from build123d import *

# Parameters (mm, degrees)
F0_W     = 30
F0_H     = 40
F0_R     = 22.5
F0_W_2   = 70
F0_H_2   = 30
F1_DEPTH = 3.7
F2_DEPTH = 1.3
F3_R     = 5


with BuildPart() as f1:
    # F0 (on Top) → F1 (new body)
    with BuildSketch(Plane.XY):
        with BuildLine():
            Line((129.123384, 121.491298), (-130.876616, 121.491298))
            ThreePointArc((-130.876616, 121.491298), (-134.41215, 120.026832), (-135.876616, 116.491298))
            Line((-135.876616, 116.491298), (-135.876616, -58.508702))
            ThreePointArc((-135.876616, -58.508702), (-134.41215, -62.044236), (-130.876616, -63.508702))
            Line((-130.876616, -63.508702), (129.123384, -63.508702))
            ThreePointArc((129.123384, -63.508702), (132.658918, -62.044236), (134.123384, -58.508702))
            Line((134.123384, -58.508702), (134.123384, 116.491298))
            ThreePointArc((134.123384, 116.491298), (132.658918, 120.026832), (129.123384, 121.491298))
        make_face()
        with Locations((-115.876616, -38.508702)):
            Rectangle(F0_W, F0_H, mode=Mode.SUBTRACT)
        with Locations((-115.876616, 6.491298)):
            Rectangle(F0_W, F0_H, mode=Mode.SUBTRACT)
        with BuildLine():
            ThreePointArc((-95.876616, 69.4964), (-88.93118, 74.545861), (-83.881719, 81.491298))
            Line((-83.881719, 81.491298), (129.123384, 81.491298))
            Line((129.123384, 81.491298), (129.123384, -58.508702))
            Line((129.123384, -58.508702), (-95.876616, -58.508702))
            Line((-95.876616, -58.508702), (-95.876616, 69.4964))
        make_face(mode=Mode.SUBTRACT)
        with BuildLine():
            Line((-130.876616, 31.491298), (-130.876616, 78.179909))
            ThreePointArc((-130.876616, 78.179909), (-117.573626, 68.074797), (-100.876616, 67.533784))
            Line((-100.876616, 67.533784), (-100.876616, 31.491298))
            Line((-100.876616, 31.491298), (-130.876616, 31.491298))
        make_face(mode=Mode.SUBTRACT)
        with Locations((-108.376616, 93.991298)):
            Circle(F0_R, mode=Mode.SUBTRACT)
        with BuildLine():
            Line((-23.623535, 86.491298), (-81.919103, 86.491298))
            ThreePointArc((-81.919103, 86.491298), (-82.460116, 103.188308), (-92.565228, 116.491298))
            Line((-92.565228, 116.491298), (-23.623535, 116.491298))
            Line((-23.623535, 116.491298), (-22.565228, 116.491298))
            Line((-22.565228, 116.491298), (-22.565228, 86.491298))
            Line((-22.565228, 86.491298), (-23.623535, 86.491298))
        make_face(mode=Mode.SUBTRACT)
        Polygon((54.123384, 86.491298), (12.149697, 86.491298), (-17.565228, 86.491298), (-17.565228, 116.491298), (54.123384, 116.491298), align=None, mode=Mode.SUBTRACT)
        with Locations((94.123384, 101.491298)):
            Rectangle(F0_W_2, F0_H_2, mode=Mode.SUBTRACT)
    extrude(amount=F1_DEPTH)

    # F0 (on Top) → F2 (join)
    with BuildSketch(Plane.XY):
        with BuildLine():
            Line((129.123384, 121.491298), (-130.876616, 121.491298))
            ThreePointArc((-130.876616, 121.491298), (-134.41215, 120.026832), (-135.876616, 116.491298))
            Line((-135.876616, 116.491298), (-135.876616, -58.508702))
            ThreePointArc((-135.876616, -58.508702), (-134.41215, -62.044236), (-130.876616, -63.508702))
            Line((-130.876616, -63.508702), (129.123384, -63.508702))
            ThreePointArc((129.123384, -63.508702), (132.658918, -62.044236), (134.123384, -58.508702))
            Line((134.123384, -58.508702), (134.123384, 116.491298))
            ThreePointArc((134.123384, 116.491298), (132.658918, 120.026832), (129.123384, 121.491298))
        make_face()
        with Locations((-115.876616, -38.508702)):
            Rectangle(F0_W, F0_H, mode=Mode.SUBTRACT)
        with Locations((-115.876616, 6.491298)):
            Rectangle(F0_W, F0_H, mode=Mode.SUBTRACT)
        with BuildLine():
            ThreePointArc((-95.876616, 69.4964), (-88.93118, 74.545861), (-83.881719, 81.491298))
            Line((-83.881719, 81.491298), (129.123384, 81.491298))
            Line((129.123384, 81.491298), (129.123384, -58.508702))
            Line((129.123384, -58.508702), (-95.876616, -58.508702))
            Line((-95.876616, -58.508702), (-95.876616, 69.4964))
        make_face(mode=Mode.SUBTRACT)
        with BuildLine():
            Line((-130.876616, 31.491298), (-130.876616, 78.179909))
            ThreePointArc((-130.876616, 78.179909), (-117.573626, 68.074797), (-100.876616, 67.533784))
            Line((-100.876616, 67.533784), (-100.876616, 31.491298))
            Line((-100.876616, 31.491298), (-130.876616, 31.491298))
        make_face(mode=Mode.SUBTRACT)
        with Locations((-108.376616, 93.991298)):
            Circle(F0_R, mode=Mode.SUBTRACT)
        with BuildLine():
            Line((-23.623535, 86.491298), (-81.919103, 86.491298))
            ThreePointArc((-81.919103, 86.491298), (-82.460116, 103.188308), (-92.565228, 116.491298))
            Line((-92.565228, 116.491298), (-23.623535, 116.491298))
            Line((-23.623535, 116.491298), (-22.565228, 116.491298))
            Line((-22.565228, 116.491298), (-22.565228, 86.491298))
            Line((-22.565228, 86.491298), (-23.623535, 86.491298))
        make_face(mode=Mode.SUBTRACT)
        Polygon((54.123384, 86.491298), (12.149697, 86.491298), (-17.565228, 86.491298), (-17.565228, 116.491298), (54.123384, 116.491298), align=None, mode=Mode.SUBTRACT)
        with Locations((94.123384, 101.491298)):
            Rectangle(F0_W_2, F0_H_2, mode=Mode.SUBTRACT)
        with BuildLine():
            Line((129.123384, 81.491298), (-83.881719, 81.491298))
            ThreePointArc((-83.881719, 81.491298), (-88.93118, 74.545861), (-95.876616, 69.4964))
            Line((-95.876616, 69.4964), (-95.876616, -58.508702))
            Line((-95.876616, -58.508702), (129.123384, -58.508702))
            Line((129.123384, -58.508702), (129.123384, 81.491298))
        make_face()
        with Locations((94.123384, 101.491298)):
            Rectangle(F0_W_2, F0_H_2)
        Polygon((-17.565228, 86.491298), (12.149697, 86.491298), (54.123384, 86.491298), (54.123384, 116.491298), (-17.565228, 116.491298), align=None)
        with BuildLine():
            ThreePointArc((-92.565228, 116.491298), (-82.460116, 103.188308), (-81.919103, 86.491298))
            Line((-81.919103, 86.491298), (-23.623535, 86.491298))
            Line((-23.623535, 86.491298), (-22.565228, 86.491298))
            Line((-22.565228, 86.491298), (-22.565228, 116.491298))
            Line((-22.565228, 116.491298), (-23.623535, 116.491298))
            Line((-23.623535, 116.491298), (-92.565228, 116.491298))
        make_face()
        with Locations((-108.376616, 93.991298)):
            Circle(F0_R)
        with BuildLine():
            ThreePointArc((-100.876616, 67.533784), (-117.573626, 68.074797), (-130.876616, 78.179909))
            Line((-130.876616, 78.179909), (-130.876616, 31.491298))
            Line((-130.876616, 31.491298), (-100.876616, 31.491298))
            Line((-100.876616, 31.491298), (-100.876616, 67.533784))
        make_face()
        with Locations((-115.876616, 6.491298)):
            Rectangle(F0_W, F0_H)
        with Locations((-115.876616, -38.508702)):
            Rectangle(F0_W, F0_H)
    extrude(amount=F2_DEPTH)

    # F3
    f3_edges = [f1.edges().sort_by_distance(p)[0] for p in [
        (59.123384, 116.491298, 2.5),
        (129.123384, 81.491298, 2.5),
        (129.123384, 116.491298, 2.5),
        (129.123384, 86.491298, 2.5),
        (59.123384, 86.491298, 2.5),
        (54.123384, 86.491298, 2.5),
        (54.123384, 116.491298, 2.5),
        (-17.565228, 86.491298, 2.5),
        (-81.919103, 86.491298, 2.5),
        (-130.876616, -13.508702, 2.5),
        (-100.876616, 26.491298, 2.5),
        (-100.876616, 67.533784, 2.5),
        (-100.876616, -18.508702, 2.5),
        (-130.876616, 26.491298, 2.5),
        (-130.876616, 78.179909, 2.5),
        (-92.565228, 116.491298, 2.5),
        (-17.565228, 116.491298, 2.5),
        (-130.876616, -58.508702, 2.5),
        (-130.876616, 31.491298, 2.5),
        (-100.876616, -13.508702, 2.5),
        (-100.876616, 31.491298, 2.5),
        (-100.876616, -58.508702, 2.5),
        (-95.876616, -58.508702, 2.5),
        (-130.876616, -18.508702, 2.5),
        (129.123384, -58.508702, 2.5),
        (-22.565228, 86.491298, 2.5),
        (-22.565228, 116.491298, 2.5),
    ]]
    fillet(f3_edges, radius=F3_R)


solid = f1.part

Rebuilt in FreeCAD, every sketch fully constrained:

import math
import FreeCAD as App
import Part
import Sketcher
Q = App.Units.Quantity


def edges_at(feature, points):
    """Names of the edges that pass closest to the given points."""
    edges = feature.Shape.Edges
    near = lambda p: min(range(len(edges)), key=lambda i: edges[i].distToShape(Part.Vertex(*p))[0])
    return sorted({f"Edge{near(p) + 1}" for p in points})


def add_polygon(sketch, points):
    """Adds a closed chain of lines whose ends are joined by coincident constraints."""
    first, n = sketch.GeometryCount, len(points)
    for a, b in zip(points, points[1:] + points[:1]):
        sketch.addGeometry(Part.LineSegment(App.Vector(*a, 0), App.Vector(*b, 0)), False)
    for i in range(n):
        sketch.addConstraint(Sketcher.Constraint("Coincident", first + i, 2, first + (i + 1) % n, 1))

doc = App.newDocument("Part")
body = doc.addObject("PartDesign::Body", "Body")

sketch1 = body.newObject("Sketcher::SketchObject", "Sketch")
sketch1.AttachmentSupport = (doc.getObject("XY_Plane"), [""])
sketch1.MapMode = "FlatFace"
sketch1.addGeometry(Part.LineSegment(App.Vector(129.1, 121.5, 0), App.Vector(-130.9, 121.5, 0)), False)
sketch1.addGeometry(Part.ArcOfCircle(Part.Circle(App.Vector(-130.9, 116.5, 0), App.Vector(0, 0, 1), 5), math.radians(90), math.radians(180)), False)
sketch1.addGeometry(Part.LineSegment(App.Vector(-135.9, 116.5, 0), App.Vector(-135.9, -58.5, 0)), False)
sketch1.addGeometry(Part.ArcOfCircle(Part.Circle(App.Vector(-130.9, -58.5, 0), App.Vector(0, 0, 1), 5), math.radians(180), math.radians(270)), False)
sketch1.addGeometry(Part.LineSegment(App.Vector(-130.9, -63.5, 0), App.Vector(129.1, -63.5, 0)), False)
sketch1.addGeometry(Part.ArcOfCircle(Part.Circle(App.Vector(129.1, -58.5, 0), App.Vector(0, 0, 1), 5), math.radians(-90), math.radians(0)), False)
sketch1.addGeometry(Part.LineSegment(App.Vector(134.1, -58.5, 0), App.Vector(134.1, 116.5, 0)), False)
sketch1.addGeometry(Part.ArcOfCircle(Part.Circle(App.Vector(129.1, 116.5, 0), App.Vector(0, 0, 1), 5), math.radians(0), math.radians(90)), False)
add_polygon(sketch1, [(-100.9, -58.5), (-130.9, -58.5), (-130.9, -18.5), (-100.9, -18.5)])
add_polygon(sketch1, [(-100.9, -13.5), (-130.9, -13.5), (-130.9, 26.5), (-100.9, 26.5)])
sketch1.addGeometry(Part.LineSegment(App.Vector(-95.9, -58.5, 0), App.Vector(-95.9, 69.5, 0)), False)
sketch1.addGeometry(Part.ArcOfCircle(Part.Circle(App.Vector(-108.4, 94, 0), App.Vector(0, 0, 1), 27.5), math.radians(-63), math.radians(-27)), False)
sketch1.addGeometry(Part.LineSegment(App.Vector(-83.9, 81.5, 0), App.Vector(129.1, 81.5, 0)), False)
sketch1.addGeometry(Part.LineSegment(App.Vector(129.1, 81.5, 0), App.Vector(129.1, -58.5, 0)), False)
sketch1.addGeometry(Part.LineSegment(App.Vector(129.1, -58.5, 0), App.Vector(-95.9, -58.5, 0)), False)
sketch1.addGeometry(Part.LineSegment(App.Vector(-100.9, 31.5, 0), App.Vector(-130.9, 31.5, 0)), False)
sketch1.addGeometry(Part.LineSegment(App.Vector(-130.9, 31.5, 0), App.Vector(-130.9, 78.2, 0)), False)
sketch1.addGeometry(Part.ArcOfCircle(Part.Circle(App.Vector(-108.4, 94, 0), App.Vector(0, 0, 1), 27.5), math.radians(-145), math.radians(-74)), False)
sketch1.addGeometry(Part.LineSegment(App.Vector(-100.9, 67.5, 0), App.Vector(-100.9, 31.5, 0)), False)
sketch1.addGeometry(Part.Circle(App.Vector(-108.4, 94, 0), App.Vector(0, 0, 1), 22.5), False)
sketch1.addGeometry(Part.LineSegment(App.Vector(-22.6, 86.5, 0), App.Vector(-81.9, 86.5, 0)), False)
sketch1.addGeometry(Part.ArcOfCircle(Part.Circle(App.Vector(-108.4, 94, 0), App.Vector(0, 0, 1), 27.5), math.radians(-16), math.radians(55)), False)
sketch1.addGeometry(Part.LineSegment(App.Vector(-92.6, 116.5, 0), App.Vector(-22.6, 116.5, 0)), False)
sketch1.addGeometry(Part.LineSegment(App.Vector(-22.6, 116.5, 0), App.Vector(-22.6, 86.5, 0)), False)
add_polygon(sketch1, [(54.1, 116.5), (54.1, 86.5), (-17.6, 86.5), (-17.6, 116.5)])
add_polygon(sketch1, [(129.1, 86.5), (59.1, 86.5), (59.1, 116.5), (129.1, 116.5)])
sketch1.addConstraint(Sketcher.Constraint("Tangent", 0, 2, 1, 1))
sketch1.addConstraint(Sketcher.Constraint("Tangent", 1, 2, 2, 1))
sketch1.addConstraint(Sketcher.Constraint("Tangent", 2, 2, 3, 1))
sketch1.addConstraint(Sketcher.Constraint("Tangent", 3, 2, 4, 1))
sketch1.addConstraint(Sketcher.Constraint("Tangent", 4, 2, 5, 1))
sketch1.addConstraint(Sketcher.Constraint("Tangent", 5, 2, 6, 1))
sketch1.addConstraint(Sketcher.Constraint("Tangent", 6, 2, 7, 1))
sketch1.addConstraint(Sketcher.Constraint("Tangent", 7, 2, 0, 1))
sketch1.addConstraint(Sketcher.Constraint("Coincident", 16, 2, 17, 1))
sketch1.addConstraint(Sketcher.Constraint("Coincident", 17, 2, 18, 1))
sketch1.addConstraint(Sketcher.Constraint("Coincident", 18, 2, 19, 1))
sketch1.addConstraint(Sketcher.Constraint("Coincident", 19, 2, 20, 1))
sketch1.addConstraint(Sketcher.Constraint("Coincident", 20, 2, 16, 1))
sketch1.addConstraint(Sketcher.Constraint("Coincident", 21, 2, 22, 1))
sketch1.addConstraint(Sketcher.Constraint("Coincident", 22, 2, 23, 1))
sketch1.addConstraint(Sketcher.Constraint("Coincident", 23, 2, 24, 1))
sketch1.addConstraint(Sketcher.Constraint("Coincident", 24, 2, 21, 1))
sketch1.addConstraint(Sketcher.Constraint("Coincident", 26, 2, 27, 1))
sketch1.addConstraint(Sketcher.Constraint("Coincident", 27, 2, 28, 1))
sketch1.addConstraint(Sketcher.Constraint("Coincident", 28, 2, 29, 1))
sketch1.addConstraint(Sketcher.Constraint("Coincident", 29, 2, 26, 1))
sketch1.addConstraint(Sketcher.Constraint("Horizontal", 0))
sketch1.addConstraint(Sketcher.Constraint("Vertical", 2))
sketch1.addConstraint(Sketcher.Constraint("Horizontal", 4))
sketch1.addConstraint(Sketcher.Constraint("Vertical", 6))
sketch1.addConstraint(Sketcher.Constraint("Horizontal", 8))
sketch1.addConstraint(Sketcher.Constraint("Vertical", 9))
sketch1.addConstraint(Sketcher.Constraint("Horizontal", 10))
sketch1.addConstraint(Sketcher.Constraint("Vertical", 11))
sketch1.addConstraint(Sketcher.Constraint("Horizontal", 12))
sketch1.addConstraint(Sketcher.Constraint("Vertical", 13))
sketch1.addConstraint(Sketcher.Constraint("Horizontal", 14))
sketch1.addConstraint(Sketcher.Constraint("Vertical", 15))
sketch1.addConstraint(Sketcher.Constraint("Vertical", 16))
sketch1.addConstraint(Sketcher.Constraint("Horizontal", 18))
sketch1.addConstraint(Sketcher.Constraint("Vertical", 19))
sketch1.addConstraint(Sketcher.Constraint("Horizontal", 20))
sketch1.addConstraint(Sketcher.Constraint("Horizontal", 21))
sketch1.addConstraint(Sketcher.Constraint("Vertical", 22))
sketch1.addConstraint(Sketcher.Constraint("Vertical", 24))
sketch1.addConstraint(Sketcher.Constraint("Horizontal", 26))
sketch1.addConstraint(Sketcher.Constraint("Horizontal", 28))
sketch1.addConstraint(Sketcher.Constraint("Vertical", 29))
sketch1.addConstraint(Sketcher.Constraint("Vertical", 30))
sketch1.addConstraint(Sketcher.Constraint("Horizontal", 31))
sketch1.addConstraint(Sketcher.Constraint("Vertical", 32))
sketch1.addConstraint(Sketcher.Constraint("Horizontal", 33))
sketch1.addConstraint(Sketcher.Constraint("Horizontal", 34))
sketch1.addConstraint(Sketcher.Constraint("Vertical", 35))
sketch1.addConstraint(Sketcher.Constraint("Horizontal", 36))
sketch1.addConstraint(Sketcher.Constraint("Vertical", 37))
sketch1.addConstraint(Sketcher.Constraint("Coincident", 23, 3, 17, 3))
sketch1.addConstraint(Sketcher.Constraint("Coincident", 25, 3, 17, 3))
sketch1.addConstraint(Sketcher.Constraint("Coincident", 27, 3, 17, 3))
sketch1.addConstraint(Sketcher.Constraint("Coincident", 8, 2, 3, 3))
sketch1.addConstraint(Sketcher.Constraint("Coincident", 19, 2, 5, 3))
sketch1.addConstraint(Sketcher.Constraint("Coincident", 36, 2, 7, 3))
sketch1.addConstraint(Sketcher.Constraint("Equal", 1, 3))
sketch1.addConstraint(Sketcher.Constraint("Equal", 3, 5))
sketch1.addConstraint(Sketcher.Constraint("Equal", 5, 7))
sketch1.addConstraint(Sketcher.Constraint("Equal", 17, 23))
sketch1.addConstraint(Sketcher.Constraint("Equal", 23, 27))
sketch1.addConstraint(Sketcher.Constraint("Horizontal", 6, 2, 27, 2))
sketch1.addConstraint(Sketcher.Constraint("Horizontal", 29, 2, 30, 2))
sketch1.addConstraint(Sketcher.Constraint("Horizontal", 28, 2, 32, 2))
sketch1.addConstraint(Sketcher.Constraint("Horizontal", 31, 2, 34, 2))
sketch1.addConstraint(Sketcher.Constraint("Vertical", 9, 2, 12, 2))
sketch1.addConstraint(Sketcher.Constraint("Vertical", 11, 2, 14, 2))
sketch1.addConstraint(Sketcher.Constraint("Vertical", 13, 2, 21, 2))
sketch1.addConstraint(Sketcher.Constraint("Vertical", 15, 2, 23, 2))
sketch1.addConstraint(Sketcher.Constraint("Equal", 28, 34))
sketch1.addConstraint(Sketcher.Constraint("Equal", 11, 13))
sketch1.addConstraint(Sketcher.Constraint("Equal", 21, 29))
sketch1.addConstraint(Sketcher.Constraint("Diameter", 25, Q("45 mm")))
sketch1.addConstraint(Sketcher.Constraint("Radius", 1, Q("5 mm")))
sketch1.addConstraint(Sketcher.Constraint("Radius", 17, Q("27.500001 mm")))
sketch1.addConstraint(Sketcher.Constraint("DistanceX", 0, 2, 0, 1, Q("260 mm")))
sketch1.addConstraint(Sketcher.Constraint("DistanceX", 8, 2, 8, 1, Q("30 mm")))
sketch1.addConstraint(Sketcher.Constraint("DistanceX", 20, 2, 20, 1, Q("225 mm")))
sketch1.addConstraint(Sketcher.Constraint("DistanceX", 28, 1, 28, 2, Q("70 mm")))
sketch1.addConstraint(Sketcher.Constraint("DistanceY", 2, 2, 2, 1, Q("175 mm")))
sketch1.addConstraint(Sketcher.Constraint("DistanceY", 9, 1, 9, 2, Q("40 mm")))
sketch1.addConstraint(Sketcher.Constraint("DistanceY", 19, 2, 19, 1, Q("140 mm")))
sketch1.addConstraint(Sketcher.Constraint("DistanceY", 9, 2, 12, 2, Q("5 mm")))
sketch1.addConstraint(Sketcher.Constraint("DistanceY", 13, 2, 21, 2, Q("5 mm")))
sketch1.addConstraint(Sketcher.Constraint("DistanceX", 30, 2, 18, 2, Q("75 mm")))
sketch1.addConstraint(Sketcher.Constraint("DistanceX", 29, 2, 31, 2, Q("5 mm")))
sketch1.addConstraint(Sketcher.Constraint("DistanceX", 1, 3, 17, 3, Q("22.499999 mm")))
sketch1.addConstraint(Sketcher.Constraint("DistanceY", 17, 3, 1, 3, Q("22.500001 mm")))
sketch1.addConstraint(Sketcher.Constraint("DistanceY", -1, 1, 1, 3, Q("116.491298 mm")))
sketch1.addConstraint(Sketcher.Constraint("DistanceX", 27, 3, -1, 1, Q("108.376619 mm")))
pad1 = body.newObject("PartDesign::Pad", "Pad")
pad1.Profile = sketch1
pad1.Length = 3.7

sketch2 = body.newObject("Sketcher::SketchObject", "Sketch001")
sketch2.AttachmentSupport = (doc.getObject("XY_Plane"), [""])
sketch2.MapMode = "FlatFace"
sketch2.addGeometry(Part.LineSegment(App.Vector(129.1, 121.5, 0), App.Vector(-130.9, 121.5, 0)), False)
sketch2.addGeometry(Part.ArcOfCircle(Part.Circle(App.Vector(-130.9, 116.5, 0), App.Vector(0, 0, 1), 5), math.radians(90), math.radians(180)), False)
sketch2.addGeometry(Part.LineSegment(App.Vector(-135.9, 116.5, 0), App.Vector(-135.9, -58.5, 0)), False)
sketch2.addGeometry(Part.ArcOfCircle(Part.Circle(App.Vector(-130.9, -58.5, 0), App.Vector(0, 0, 1), 5), math.radians(180), math.radians(270)), False)
sketch2.addGeometry(Part.LineSegment(App.Vector(-130.9, -63.5, 0), App.Vector(129.1, -63.5, 0)), False)
sketch2.addGeometry(Part.ArcOfCircle(Part.Circle(App.Vector(129.1, -58.5, 0), App.Vector(0, 0, 1), 5), math.radians(-90), math.radians(0)), False)
sketch2.addGeometry(Part.LineSegment(App.Vector(134.1, -58.5, 0), App.Vector(134.1, 116.5, 0)), False)
sketch2.addGeometry(Part.ArcOfCircle(Part.Circle(App.Vector(129.1, 116.5, 0), App.Vector(0, 0, 1), 5), math.radians(0), math.radians(90)), False)
sketch2.addConstraint(Sketcher.Constraint("Tangent", 0, 2, 1, 1))
sketch2.addConstraint(Sketcher.Constraint("Tangent", 1, 2, 2, 1))
sketch2.addConstraint(Sketcher.Constraint("Tangent", 2, 2, 3, 1))
sketch2.addConstraint(Sketcher.Constraint("Tangent", 3, 2, 4, 1))
sketch2.addConstraint(Sketcher.Constraint("Tangent", 4, 2, 5, 1))
sketch2.addConstraint(Sketcher.Constraint("Tangent", 5, 2, 6, 1))
sketch2.addConstraint(Sketcher.Constraint("Tangent", 6, 2, 7, 1))
sketch2.addConstraint(Sketcher.Constraint("Tangent", 7, 2, 0, 1))
sketch2.addConstraint(Sketcher.Constraint("Horizontal", 0))
sketch2.addConstraint(Sketcher.Constraint("Vertical", 2))
sketch2.addConstraint(Sketcher.Constraint("Horizontal", 4))
sketch2.addConstraint(Sketcher.Constraint("Vertical", 6))
sketch2.addConstraint(Sketcher.Constraint("Equal", 1, 3))
sketch2.addConstraint(Sketcher.Constraint("Equal", 3, 5))
sketch2.addConstraint(Sketcher.Constraint("Equal", 5, 7))
sketch2.addConstraint(Sketcher.Constraint("Radius", 1, Q("5 mm")))
sketch2.addConstraint(Sketcher.Constraint("DistanceX", 0, 2, 0, 1, Q("260 mm")))
sketch2.addConstraint(Sketcher.Constraint("DistanceY", 2, 2, 2, 1, Q("175 mm")))
sketch2.addConstraint(Sketcher.Constraint("DistanceY", -1, 1, 1, 3, Q("116.491298 mm")))
sketch2.addConstraint(Sketcher.Constraint("DistanceX", 1, 3, -1, 1, Q("130.876616 mm")))
pad2 = body.newObject("PartDesign::Pad", "Pad001")
pad2.Profile = sketch2
pad2.Length = 1.3
doc.recompute()

fillet = body.newObject("PartDesign::Fillet", "Fillet")
fillet.Base = (pad2, edges_at(pad2, [
    (59.123, 116.491, 2.5),
    (129.123, 81.491, 2.5),
    (129.123, 116.491, 2.5),
    (129.123, 86.491, 2.5),
    (59.123, 86.491, 2.5),
    (54.123, 86.491, 2.5),
    (54.123, 116.491, 2.5),
    (-17.565, 86.491, 2.5),
    (-81.919, 86.491, 2.5),
    (-130.877, -13.509, 2.5),
    (-100.877, 26.491, 2.5),
    (-100.877, 67.534, 2.5),
    (-100.877, -18.509, 2.5),
    (-130.877, 26.491, 2.5),
    (-130.877, 78.18, 2.5),
    (-92.565, 116.491, 2.5),
    (-17.565, 116.491, 2.5),
    (-130.877, -58.509, 2.5),
    (-130.877, 31.491, 2.5),
    (-100.877, -13.509, 2.5),
    (-100.877, 31.491, 2.5),
    (-100.877, -58.509, 2.5),
    (-95.877, -58.509, 2.5),
    (-130.877, -18.509, 2.5),
    (129.123, -58.509, 2.5),
    (-22.565, 86.491, 2.5),
    (-22.565, 116.491, 2.5),
]))
fillet.Radius = 5

doc.recompute()
